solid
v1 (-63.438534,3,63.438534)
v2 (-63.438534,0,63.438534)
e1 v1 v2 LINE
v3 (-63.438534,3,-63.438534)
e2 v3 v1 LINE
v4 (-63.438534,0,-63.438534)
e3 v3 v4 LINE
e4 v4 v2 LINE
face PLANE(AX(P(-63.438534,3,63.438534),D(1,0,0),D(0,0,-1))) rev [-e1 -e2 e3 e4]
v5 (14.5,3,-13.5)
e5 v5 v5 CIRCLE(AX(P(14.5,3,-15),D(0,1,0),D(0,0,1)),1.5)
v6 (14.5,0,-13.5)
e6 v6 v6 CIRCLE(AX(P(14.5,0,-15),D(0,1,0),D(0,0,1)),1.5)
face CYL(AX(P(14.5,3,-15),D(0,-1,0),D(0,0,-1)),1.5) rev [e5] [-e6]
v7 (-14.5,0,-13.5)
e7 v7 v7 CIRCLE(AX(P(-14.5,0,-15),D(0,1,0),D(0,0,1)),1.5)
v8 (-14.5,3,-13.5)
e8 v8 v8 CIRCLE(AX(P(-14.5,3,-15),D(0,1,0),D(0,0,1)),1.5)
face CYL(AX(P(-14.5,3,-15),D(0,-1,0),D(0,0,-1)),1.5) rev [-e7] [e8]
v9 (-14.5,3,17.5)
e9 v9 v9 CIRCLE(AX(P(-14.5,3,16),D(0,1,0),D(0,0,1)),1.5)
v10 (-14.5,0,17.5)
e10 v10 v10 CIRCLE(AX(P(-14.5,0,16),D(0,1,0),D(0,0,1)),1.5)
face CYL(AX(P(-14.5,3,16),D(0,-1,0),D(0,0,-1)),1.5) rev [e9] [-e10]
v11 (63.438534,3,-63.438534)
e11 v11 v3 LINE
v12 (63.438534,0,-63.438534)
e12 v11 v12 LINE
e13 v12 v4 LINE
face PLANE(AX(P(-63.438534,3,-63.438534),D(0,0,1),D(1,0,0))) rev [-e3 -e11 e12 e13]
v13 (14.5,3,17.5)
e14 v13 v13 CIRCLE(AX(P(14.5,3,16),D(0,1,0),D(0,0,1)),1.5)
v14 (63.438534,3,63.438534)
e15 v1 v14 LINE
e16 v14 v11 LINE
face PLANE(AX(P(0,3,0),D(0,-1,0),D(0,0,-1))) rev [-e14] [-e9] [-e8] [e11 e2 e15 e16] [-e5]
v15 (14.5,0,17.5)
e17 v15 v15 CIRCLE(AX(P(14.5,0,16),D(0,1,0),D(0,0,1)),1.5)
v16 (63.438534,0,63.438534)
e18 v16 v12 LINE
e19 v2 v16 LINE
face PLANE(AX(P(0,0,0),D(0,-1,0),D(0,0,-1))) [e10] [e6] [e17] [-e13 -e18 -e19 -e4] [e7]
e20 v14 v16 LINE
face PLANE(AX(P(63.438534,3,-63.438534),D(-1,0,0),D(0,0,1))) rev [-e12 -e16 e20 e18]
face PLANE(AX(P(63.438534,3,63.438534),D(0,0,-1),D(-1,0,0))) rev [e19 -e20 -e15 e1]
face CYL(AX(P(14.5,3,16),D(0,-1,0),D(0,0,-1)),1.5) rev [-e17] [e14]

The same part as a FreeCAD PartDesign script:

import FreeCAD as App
import Part
import Sketcher


def add_polygon(sketch, points):
    """Adds a closed chain of lines whose ends are joined by coincident constraints."""
    first, n = sketch.GeometryCount, len(points)
    for a, b in zip(points, points[1:] + points[:1]):
        sketch.addGeometry(Part.LineSegment(App.Vector(*a, 0), App.Vector(*b, 0)), False)
    for i in range(n):
        sketch.addConstraint(Sketcher.Constraint("Coincident", first + i, 2, first + (i + 1) % n, 1))

doc = App.newDocument("Part")
body = doc.addObject("PartDesign::Body", "Body")

sketch1 = body.newObject("Sketcher::SketchObject", "Sketch")
sketch1.AttachmentSupport = (doc.getObject("XZ_Plane"), [""])
sketch1.MapMode = "FlatFace"
add_polygon(sketch1, [(-63.4, -63.4), (-63.4, 63.4), (63.4, 63.4), (63.4, -63.4)])
sketch1.addGeometry(Part.Circle(App.Vector(-14.5, 16, 0), App.Vector(0, 0, 1), 1.5), False)
sketch1.addGeometry(Part.Circle(App.Vector(14.5, 16, 0), App.Vector(0, 0, 1), 1.5), False)
sketch1.addGeometry(Part.Circle(App.Vector(-14.5, -15, 0), App.Vector(0, 0, 1), 1.5), False)
sketch1.addGeometry(Part.Circle(App.Vector(14.5, -15, 0), App.Vector(0, 0, 1), 1.5), False)
sketch1.addConstraint([
    Sketcher.Constraint("Vertical", 0),
    Sketcher.Constraint("Horizontal", 1),
    Sketcher.Constraint("Vertical", 2),
    Sketcher.Constraint("Horizontal", 3),
    Sketcher.Constraint("Equal", 4, 5),
    Sketcher.Constraint("Equal", 5, 6),
    Sketcher.Constraint("Equal", 6, 7),
    Sketcher.Constraint("Symmetric", 0, 2, 2, 2, -1, 1),
    Sketcher.Constraint("Symmetric", 4, 3, 5, 3, -2),
    Sketcher.Constraint("Symmetric", 6, 3, 7, 3, -2),
    Sketcher.Constraint("Vertical", 4, 3, 6, 3),
    Sketcher.Constraint("Equal", 3, 0),
    Sketcher.Constraint("Diameter", 4, 3.0),
    Sketcher.Constraint("DistanceY", -1, 1, 4, 3, 16.0),
    Sketcher.Constraint("DistanceY", 6, 3, -1, 1, 15.0),
    Sketcher.Constraint("DistanceX", 4, 3, 5, 3, 29.0),
    Sketcher.Constraint("DistanceX", 1, 1, 1, 2, 126.877068),
])
pad1 = body.newObject("PartDesign::Pad", "Pad")
pad1.Profile = sketch1
pad1.Length = 3
pad1.Reversed = True

doc.recompute()
